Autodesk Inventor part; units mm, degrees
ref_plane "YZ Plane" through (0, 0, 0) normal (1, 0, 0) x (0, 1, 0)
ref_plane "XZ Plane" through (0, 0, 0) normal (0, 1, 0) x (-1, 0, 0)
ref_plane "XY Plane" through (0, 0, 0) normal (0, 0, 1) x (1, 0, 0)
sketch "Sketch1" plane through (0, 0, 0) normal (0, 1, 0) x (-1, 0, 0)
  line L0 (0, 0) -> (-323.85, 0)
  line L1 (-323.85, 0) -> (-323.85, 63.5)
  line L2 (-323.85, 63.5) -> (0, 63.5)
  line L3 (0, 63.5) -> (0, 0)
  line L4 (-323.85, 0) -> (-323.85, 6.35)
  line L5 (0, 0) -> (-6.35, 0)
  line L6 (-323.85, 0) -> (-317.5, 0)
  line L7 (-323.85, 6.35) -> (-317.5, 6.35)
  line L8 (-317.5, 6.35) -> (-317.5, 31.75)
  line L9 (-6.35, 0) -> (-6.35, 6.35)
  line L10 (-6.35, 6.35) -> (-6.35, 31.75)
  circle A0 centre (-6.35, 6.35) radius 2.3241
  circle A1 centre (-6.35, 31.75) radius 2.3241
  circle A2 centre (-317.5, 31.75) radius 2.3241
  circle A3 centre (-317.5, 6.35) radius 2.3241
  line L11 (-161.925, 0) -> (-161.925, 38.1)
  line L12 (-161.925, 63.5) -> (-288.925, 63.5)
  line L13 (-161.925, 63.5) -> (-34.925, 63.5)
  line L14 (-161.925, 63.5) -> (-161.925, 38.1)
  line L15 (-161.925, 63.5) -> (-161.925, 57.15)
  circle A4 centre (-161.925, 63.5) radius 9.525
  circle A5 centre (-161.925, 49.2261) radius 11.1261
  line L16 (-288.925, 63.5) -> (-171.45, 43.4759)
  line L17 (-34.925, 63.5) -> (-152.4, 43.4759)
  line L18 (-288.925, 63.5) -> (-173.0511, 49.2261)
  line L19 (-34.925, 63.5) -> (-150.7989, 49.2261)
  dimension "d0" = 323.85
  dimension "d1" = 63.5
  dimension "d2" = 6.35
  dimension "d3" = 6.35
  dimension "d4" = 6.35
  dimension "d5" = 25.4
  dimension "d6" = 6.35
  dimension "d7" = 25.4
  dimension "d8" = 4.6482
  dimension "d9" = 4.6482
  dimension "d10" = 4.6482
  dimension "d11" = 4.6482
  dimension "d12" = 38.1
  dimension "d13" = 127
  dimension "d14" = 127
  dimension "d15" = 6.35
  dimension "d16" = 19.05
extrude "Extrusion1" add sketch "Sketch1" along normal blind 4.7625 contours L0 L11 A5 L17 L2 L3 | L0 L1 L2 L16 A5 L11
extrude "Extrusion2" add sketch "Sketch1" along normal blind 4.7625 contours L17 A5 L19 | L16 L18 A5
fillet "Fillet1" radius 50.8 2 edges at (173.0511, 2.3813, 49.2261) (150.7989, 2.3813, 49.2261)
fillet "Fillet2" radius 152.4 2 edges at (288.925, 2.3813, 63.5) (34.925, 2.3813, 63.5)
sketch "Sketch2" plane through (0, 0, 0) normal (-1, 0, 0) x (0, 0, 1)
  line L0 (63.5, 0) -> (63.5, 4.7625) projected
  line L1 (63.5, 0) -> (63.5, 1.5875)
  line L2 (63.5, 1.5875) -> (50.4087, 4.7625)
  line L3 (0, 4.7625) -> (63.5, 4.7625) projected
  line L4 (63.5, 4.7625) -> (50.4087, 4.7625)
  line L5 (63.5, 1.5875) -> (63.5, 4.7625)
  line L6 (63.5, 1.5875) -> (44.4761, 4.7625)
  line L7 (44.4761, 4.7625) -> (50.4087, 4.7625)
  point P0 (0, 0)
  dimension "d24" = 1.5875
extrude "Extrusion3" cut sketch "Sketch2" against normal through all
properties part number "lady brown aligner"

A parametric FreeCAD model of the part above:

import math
import FreeCAD as App
import Part
import Sketcher
from FreeCAD import Vector
Q = App.Units.Quantity


def edges_at(feature, points):
    """Names of the edges that pass closest to the given points."""
    edges = feature.Shape.Edges
    near = lambda p: min(range(len(edges)), key=lambda i: edges[i].distToShape(Part.Vertex(*p))[0])
    return sorted({f"Edge{near(p) + 1}" for p in points})

doc = App.newDocument("Part")
body = doc.addObject("PartDesign::Body", "Body")

sketch1 = doc.addObject("Sketcher::SketchObject", "Sketch")
body.addObject(sketch1)
sketch1.AttachmentSupport = (doc.XZ_Plane, [""])
sketch1.MapMode = "FlatFace"
sketch1.addGeometry(Part.LineSegment(Vector(6.3, 0, 0), Vector(0, 0, 0)), False)
sketch1.addGeometry(Part.LineSegment(Vector(0, 0, 0), Vector(0, 63.5, 0)), False)
sketch1.addGeometry(Part.LineSegment(Vector(0, 63.5, 0), Vector(34.9, 63.5, 0)), False)
sketch1.addGeometry(Part.LineSegment(Vector(34.9, 63.5, 0), Vector(152.4, 43.5, 0)), False)
sketch1.addGeometry(Part.ArcOfCircle(Part.Circle(Vector(161.9, 49.2, 0), Vector(0, 0, 1), 11.1), math.radians(-149), math.radians(-31)), False)
sketch1.addGeometry(Part.LineSegment(Vector(171.4, 43.5, 0), Vector(288.9, 63.5, 0)), False)
sketch1.addGeometry(Part.LineSegment(Vector(288.9, 63.5, 0), Vector(323.9, 63.5, 0)), False)
sketch1.addGeometry(Part.LineSegment(Vector(323.9, 63.5, 0), Vector(323.9, 6.3, 0)), False)
sketch1.addGeometry(Part.LineSegment(Vector(323.9, 6.3, 0), Vector(323.9, 0, 0)), False)
sketch1.addGeometry(Part.LineSegment(Vector(323.9, 0, 0), Vector(6.3, 0, 0)), False)
sketch1.addGeometry(Part.ArcOfCircle(Part.Circle(Vector(6.3, 6.3, 0), Vector(0, 0, 1), 2.3), math.radians(-90), math.radians(90)), False)
sketch1.addGeometry(Part.ArcOfCircle(Part.Circle(Vector(6.3, 6.3, 0), Vector(0, 0, 1), 2.3), math.radians(90), math.radians(270)), False)
sketch1.addGeometry(Part.Circle(Vector(6.3, 31.8, 0), Vector(0, 0, 1), 2.3), False)
sketch1.addGeometry(Part.ArcOfCircle(Part.Circle(Vector(317.5, 6.3, 0), Vector(0, 0, 1), 2.3), math.radians(0), math.radians(90)), False)
sketch1.addGeometry(Part.ArcOfCircle(Part.Circle(Vector(317.5, 6.3, 0), Vector(0, 0, 1), 2.3), math.radians(90), math.radians(360)), False)
sketch1.addGeometry(Part.Circle(Vector(317.5, 31.8, 0), Vector(0, 0, 1), 2.3), False)
sketch1.addConstraint(Sketcher.Constraint("Coincident", 0, 2, 1, 1))
sketch1.addConstraint(Sketcher.Constraint("Coincident", 1, 2, 2, 1))
sketch1.addConstraint(Sketcher.Constraint("Coincident", 2, 2, 3, 1))
sketch1.addConstraint(Sketcher.Constraint("Coincident", 3, 2, 4, 1))
sketch1.addConstraint(Sketcher.Constraint("Coincident", 4, 2, 5, 1))
sketch1.addConstraint(Sketcher.Constraint("Coincident", 5, 2, 6, 1))
sketch1.addConstraint(Sketcher.Constraint("Coincident", 6, 2, 7, 1))
sketch1.addConstraint(Sketcher.Constraint("Coincident", 7, 2, 8, 1))
sketch1.addConstraint(Sketcher.Constraint("Coincident", 8, 2, 9, 1))
sketch1.addConstraint(Sketcher.Constraint("Coincident", 9, 2, 0, 1))
sketch1.addConstraint(Sketcher.Constraint("Tangent", 10, 1, 11, 2))
sketch1.addConstraint(Sketcher.Constraint("Coincident", 11, 1, 10, 2))
sketch1.addConstraint(Sketcher.Constraint("Tangent", 13, 1, 14, 2))
sketch1.addConstraint(Sketcher.Constraint("Coincident", 14, 1, 13, 2))
sketch1.addConstraint(Sketcher.Constraint("Horizontal", 0))
sketch1.addConstraint(Sketcher.Constraint("Vertical", 1))
sketch1.addConstraint(Sketcher.Constraint("Horizontal", 2))
sketch1.addConstraint(Sketcher.Constraint("Horizontal", 6))
sketch1.addConstraint(Sketcher.Constraint("Vertical", 7))
sketch1.addConstraint(Sketcher.Constraint("Vertical", 8))
sketch1.addConstraint(Sketcher.Constraint("Horizontal", 9))
sketch1.addConstraint(Sketcher.Constraint("Coincident", 0, 2, -1, 1))
sketch1.addConstraint(Sketcher.Constraint("Equal", 11, 12))
sketch1.addConstraint(Sketcher.Constraint("Equal", 12, 13))
sketch1.addConstraint(Sketcher.Constraint("Equal", 14, 15))
sketch1.addConstraint(Sketcher.Constraint("Horizontal", 11, 3, 13, 3))
sketch1.addConstraint(Sketcher.Constraint("Horizontal", 12, 3, 15, 3))
sketch1.addConstraint(Sketcher.Constraint("Horizontal", 3, 2, 4, 2))
sketch1.addConstraint(Sketcher.Constraint("Horizontal", 2, 2, 5, 2))
sketch1.addConstraint(Sketcher.Constraint("Horizontal", 14, 3, 7, 2))
sketch1.addConstraint(Sketcher.Constraint("Horizontal", 7, 2, 13, 1))
sketch1.addConstraint(Sketcher.Constraint("Vertical", 11, 3, 12, 3))
sketch1.addConstraint(Sketcher.Constraint("Vertical", 14, 3, 15, 3))
sketch1.addConstraint(Sketcher.Constraint("Vertical", 12, 3, 9, 2))
sketch1.addConstraint(Sketcher.Constraint("Vertical", 9, 2, 10, 1))
sketch1.addConstraint(Sketcher.Constraint("Vertical", 10, 1, 11, 1))
sketch1.addConstraint(Sketcher.Constraint("Vertical", 15, 3, 14, 1))
sketch1.addConstraint(Sketcher.Constraint("Equal", 2, 6))
sketch1.addConstraint(Sketcher.Constraint("Equal", 0, 8))
sketch1.addConstraint(Sketcher.Constraint("Equal", 3, 5))
sketch1.addConstraint(Sketcher.Constraint("Diameter", 12, Q("0.183 in")))
sketch1.addConstraint(Sketcher.Constraint("DistanceY", 1, 1, 1, 2, Q("2.5 in")))
sketch1.addConstraint(Sketcher.Constraint("DistanceY", 10, 3, 12, 3, Q("1 in")))
sketch1.addConstraint(Sketcher.Constraint("DistanceX", 4, 3, 5, 2, Q("5 in")))
sketch1.addConstraint(Sketcher.Constraint("DistanceX", 0, 2, 0, 1, Q("0.25 in")))
sketch1.addConstraint(Sketcher.Constraint("DistanceX", -1, 1, 6, 2, Q("12.75 in")))
sketch1.addConstraint(Sketcher.Constraint("DistanceX", 3, 2, 4, 2, Q("0.75 in")))
sketch1.addConstraint(Sketcher.Constraint("DistanceX", 15, 3, 6, 2, Q("0.25 in")))
sketch1.addConstraint(Sketcher.Constraint("Radius", 4, 11.126))
sketch1.addConstraint(Sketcher.Constraint("Distance", 3, Q("4.6917 in")))
pad1 = doc.addObject("PartDesign::Pad", "Pad")
body.addObject(pad1)
pad1.Profile = sketch1
pad1.Length = Q("0.1875 in")
pad1.Reversed = True

sketch2 = doc.addObject("Sketcher::SketchObject", "Sketch001")
body.addObject(sketch2)
sketch2.AttachmentSupport = (doc.XZ_Plane, [""])
sketch2.MapMode = "FlatFace"
sketch2.addGeometry(Part.LineSegment(Vector(152, 43, 0), Vector(35, 64, 0)), False)
sketch2.addGeometry(Part.LineSegment(Vector(35, 64, 0), Vector(151, 49, 0)), False)
sketch2.addGeometry(Part.ArcOfCircle(Part.Circle(Vector(162, 49, 0), Vector(0, 0, 1), 11), math.radians(180), math.radians(211)), False)
sketch2.addGeometry(Part.LineSegment(Vector(289, 64, 0), Vector(171, 43, 0)), False)
sketch2.addGeometry(Part.ArcOfCircle(Part.Circle(Vector(162, 49, 0), Vector(0, 0, 1), 11), math.radians(-31), math.radians(0)), False)
sketch2.addGeometry(Part.LineSegment(Vector(173, 49, 0), Vector(289, 64, 0)), False)
sketch2.addConstraint(Sketcher.Constraint("Coincident", 0, 2, 1, 1))
sketch2.addConstraint(Sketcher.Constraint("Coincident", 1, 2, 2, 1))
sketch2.addConstraint(Sketcher.Constraint("Coincident", 2, 2, 0, 1))
sketch2.addConstraint(Sketcher.Constraint("Coincident", 3, 2, 4, 1))
sketch2.addConstraint(Sketcher.Constraint("Coincident", 4, 2, 5, 1))
sketch2.addConstraint(Sketcher.Constraint("Coincident", 5, 2, 3, 1))
sketch2.addConstraint(Sketcher.Constraint("Coincident", 4, 3, 2, 3))
sketch2.addConstraint(Sketcher.Constraint("Equal", 2, 4))
sketch2.addConstraint(Sketcher.Constraint("Horizontal", 4, 3, 1, 2))
sketch2.addConstraint(Sketcher.Constraint("Horizontal", 2, 2, 3, 2))
sketch2.addConstraint(Sketcher.Constraint("Horizontal", 1, 2, 4, 2))
sketch2.addConstraint(Sketcher.Constraint("Horizontal", 0, 2, 5, 2))
sketch2.addConstraint(Sketcher.Constraint("Equal", 0, 3))
sketch2.addConstraint(Sketcher.Constraint("DistanceX", 0, 2, 2, 3, Q("5 in")))
sketch2.addConstraint(Sketcher.Constraint("DistanceY", -1, 1, 0, 2, Q("2.5 in")))
sketch2.addConstraint(Sketcher.Constraint("DistanceX", 2, 2, 3, 2, Q("0.75 in")))
sketch2.addConstraint(Sketcher.Constraint("DistanceX", -1, 1, 2, 2, Q("6 in")))
sketch2.addConstraint(Sketcher.Constraint("Radius", 2, 11.126))
sketch2.addConstraint(Sketcher.Constraint("Distance", 0, Q("4.6917 in")))
pad2 = doc.addObject("PartDesign::Pad", "Pad001")
body.addObject(pad2)
pad2.Profile = sketch2
pad2.Length = Q("0.1875 in")
pad2.Reversed = True
doc.recompute()

fillet = doc.addObject("PartDesign::Fillet", "Fillet")
body.addObject(fillet)
fillet.Base = (pad2, edges_at(pad2, [(173.051, 2.381, 49.226), (150.799, 2.381, 49.226)]))
fillet.Radius = Q("2 in")
doc.recompute()

fillet2 = doc.addObject("PartDesign::Fillet", "Fillet001")
body.addObject(fillet2)
fillet2.Base = (fillet, edges_at(fillet, [(288.925, 2.381, 63.5), (34.925, 2.381, 63.5)]))
fillet2.Radius = Q("6 in")

sketch3 = doc.addObject("Sketcher::SketchObject", "Sketch002")
body.addObject(sketch3)
sketch3.AttachmentSupport = (doc.YZ_Plane, [""])
sketch3.MapMode = "FlatFace"
sketch3.addGeometry(Part.LineSegment(Vector(4.8, 63.5, 0), Vector(4.8, 44.5, 0)), False)
sketch3.addGeometry(Part.LineSegment(Vector(4.8, 44.5, 0), Vector(1.6, 63.5, 0)), False)
sketch3.addGeometry(Part.LineSegment(Vector(1.6, 63.5, 0), Vector(4.8, 63.5, 0)), False)
sketch3.addConstraint(Sketcher.Constraint("Coincident", 0, 2, 1, 1))
sketch3.addConstraint(Sketcher.Constraint("Coincident", 1, 2, 2, 1))
sketch3.addConstraint(Sketcher.Constraint("Coincident", 2, 2, 0, 1))
sketch3.addConstraint(Sketcher.Constraint("Vertical", 0))
sketch3.addConstraint(Sketcher.Constraint("Horizontal", 2))
sketch3.addConstraint(Sketcher.Constraint("DistanceX", -1, 1, 1, 2, Q("0.0625 in")))
sketch3.addConstraint(Sketcher.Constraint("DistanceY", -1, 1, 1, 2, Q("2.5 in")))
sketch3.addConstraint(Sketcher.Constraint("DistanceX", 2, 1, 2, 2, Q("0.125 in")))
sketch3.addConstraint(Sketcher.Constraint("DistanceY", 0, 2, 0, 1, 19.024))
pocket1 = doc.addObject("PartDesign::Pocket", "Pocket")
body.addObject(pocket1)
pocket1.Profile = sketch3
pocket1.Type = "ThroughAll"
pocket1.Reversed = True

doc.recompute()
